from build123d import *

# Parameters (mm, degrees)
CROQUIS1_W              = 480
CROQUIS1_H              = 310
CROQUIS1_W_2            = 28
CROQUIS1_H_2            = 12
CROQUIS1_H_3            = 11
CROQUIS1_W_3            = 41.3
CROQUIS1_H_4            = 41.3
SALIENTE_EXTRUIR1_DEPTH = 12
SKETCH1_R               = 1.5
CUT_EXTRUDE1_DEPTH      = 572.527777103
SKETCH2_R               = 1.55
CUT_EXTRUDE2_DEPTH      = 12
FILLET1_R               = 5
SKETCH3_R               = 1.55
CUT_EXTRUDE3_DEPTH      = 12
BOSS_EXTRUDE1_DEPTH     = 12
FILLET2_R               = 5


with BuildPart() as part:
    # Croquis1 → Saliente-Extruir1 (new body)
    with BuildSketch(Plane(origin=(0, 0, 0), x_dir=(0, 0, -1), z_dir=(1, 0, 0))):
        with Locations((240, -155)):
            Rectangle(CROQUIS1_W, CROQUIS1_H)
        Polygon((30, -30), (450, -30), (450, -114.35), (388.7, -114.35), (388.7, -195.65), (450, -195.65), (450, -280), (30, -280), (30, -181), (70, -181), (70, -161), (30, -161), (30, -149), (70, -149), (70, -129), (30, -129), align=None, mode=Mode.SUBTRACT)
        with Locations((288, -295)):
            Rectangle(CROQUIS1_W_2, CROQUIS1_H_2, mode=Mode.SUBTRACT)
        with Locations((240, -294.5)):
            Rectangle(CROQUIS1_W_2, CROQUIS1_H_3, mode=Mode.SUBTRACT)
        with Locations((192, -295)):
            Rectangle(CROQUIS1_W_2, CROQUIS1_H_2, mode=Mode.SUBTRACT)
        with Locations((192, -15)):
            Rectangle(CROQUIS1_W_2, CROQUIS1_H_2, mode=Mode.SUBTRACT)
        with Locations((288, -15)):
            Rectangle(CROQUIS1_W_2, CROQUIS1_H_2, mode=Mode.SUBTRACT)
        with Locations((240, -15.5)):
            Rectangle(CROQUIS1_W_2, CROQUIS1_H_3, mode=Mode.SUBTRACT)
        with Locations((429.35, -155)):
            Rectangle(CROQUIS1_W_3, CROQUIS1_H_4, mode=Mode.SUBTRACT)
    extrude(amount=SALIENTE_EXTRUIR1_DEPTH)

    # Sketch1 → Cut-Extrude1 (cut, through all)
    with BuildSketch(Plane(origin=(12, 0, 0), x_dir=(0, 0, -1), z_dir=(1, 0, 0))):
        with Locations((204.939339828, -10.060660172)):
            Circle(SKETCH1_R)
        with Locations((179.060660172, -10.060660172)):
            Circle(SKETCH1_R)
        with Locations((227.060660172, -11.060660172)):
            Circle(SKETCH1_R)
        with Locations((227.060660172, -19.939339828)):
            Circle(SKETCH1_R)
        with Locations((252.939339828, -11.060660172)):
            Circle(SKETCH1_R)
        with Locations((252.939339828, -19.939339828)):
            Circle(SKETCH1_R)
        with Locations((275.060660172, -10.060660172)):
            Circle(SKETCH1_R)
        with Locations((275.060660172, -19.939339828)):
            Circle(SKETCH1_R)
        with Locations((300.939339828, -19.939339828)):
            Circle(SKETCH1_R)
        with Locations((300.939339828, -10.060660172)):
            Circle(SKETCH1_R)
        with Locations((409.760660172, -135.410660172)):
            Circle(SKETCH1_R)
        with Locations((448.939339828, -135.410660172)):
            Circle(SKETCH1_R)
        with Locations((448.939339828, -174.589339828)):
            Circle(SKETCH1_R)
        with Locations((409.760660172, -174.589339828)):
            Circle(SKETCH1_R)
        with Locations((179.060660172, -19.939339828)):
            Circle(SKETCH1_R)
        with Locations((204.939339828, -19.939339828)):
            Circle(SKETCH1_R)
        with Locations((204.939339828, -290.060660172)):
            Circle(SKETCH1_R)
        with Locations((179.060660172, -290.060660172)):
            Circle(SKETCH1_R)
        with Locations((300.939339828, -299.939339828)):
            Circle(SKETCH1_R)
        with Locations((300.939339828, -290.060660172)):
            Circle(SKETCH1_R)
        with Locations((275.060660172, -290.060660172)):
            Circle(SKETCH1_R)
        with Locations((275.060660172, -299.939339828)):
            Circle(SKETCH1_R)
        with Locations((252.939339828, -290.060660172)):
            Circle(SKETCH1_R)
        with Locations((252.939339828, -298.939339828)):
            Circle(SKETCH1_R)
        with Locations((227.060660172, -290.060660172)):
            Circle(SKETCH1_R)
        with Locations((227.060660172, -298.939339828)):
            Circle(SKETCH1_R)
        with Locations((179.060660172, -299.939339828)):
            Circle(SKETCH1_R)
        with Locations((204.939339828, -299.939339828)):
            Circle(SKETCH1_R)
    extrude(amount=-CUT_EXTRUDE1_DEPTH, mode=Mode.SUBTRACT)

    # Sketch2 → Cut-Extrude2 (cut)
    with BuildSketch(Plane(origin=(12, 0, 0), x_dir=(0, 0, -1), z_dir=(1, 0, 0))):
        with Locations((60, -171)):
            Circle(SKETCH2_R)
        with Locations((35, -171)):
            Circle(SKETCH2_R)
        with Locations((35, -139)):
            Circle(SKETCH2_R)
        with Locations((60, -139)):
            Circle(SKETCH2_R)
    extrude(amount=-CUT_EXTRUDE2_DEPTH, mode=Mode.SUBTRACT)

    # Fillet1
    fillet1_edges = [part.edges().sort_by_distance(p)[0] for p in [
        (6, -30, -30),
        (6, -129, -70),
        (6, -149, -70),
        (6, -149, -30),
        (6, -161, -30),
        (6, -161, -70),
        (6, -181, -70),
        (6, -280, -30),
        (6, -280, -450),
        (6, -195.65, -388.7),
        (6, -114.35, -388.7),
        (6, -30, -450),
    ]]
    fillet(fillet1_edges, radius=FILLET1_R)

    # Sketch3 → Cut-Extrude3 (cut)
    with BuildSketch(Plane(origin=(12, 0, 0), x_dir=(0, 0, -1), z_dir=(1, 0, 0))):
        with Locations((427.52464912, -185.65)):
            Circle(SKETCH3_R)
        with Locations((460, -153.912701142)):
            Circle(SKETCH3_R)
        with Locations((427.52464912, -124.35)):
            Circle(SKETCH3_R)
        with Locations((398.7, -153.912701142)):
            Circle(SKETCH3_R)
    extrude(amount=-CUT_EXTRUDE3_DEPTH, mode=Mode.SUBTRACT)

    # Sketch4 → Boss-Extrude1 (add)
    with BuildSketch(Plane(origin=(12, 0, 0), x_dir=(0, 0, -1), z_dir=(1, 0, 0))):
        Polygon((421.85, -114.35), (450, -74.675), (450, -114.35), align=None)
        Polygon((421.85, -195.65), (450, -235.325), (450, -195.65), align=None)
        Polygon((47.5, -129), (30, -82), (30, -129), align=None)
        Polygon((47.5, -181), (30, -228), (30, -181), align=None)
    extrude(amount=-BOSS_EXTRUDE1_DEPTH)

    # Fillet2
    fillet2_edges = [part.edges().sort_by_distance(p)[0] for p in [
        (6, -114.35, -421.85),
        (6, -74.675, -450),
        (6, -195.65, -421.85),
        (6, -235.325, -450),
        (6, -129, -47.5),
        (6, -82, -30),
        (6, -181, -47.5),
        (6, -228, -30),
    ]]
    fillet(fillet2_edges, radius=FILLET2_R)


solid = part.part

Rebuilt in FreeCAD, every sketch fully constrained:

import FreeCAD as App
import Part
import Sketcher

V = App.Vector
Q = App.Units.Quantity


def edges_at(feature, points):
    """Names of the edges that pass closest to the given points."""
    edges = feature.Shape.Edges
    near = lambda p: min(range(len(edges)), key=lambda i: edges[i].distToShape(Part.Vertex(*p))[0])
    return sorted({f"Edge{near(p) + 1}" for p in points})

doc = App.newDocument("Part")
body = doc.addObject("PartDesign::Body", "Body")

sketch1 = body.newObject("Sketcher::SketchObject", "Sketch")
sketch1.AttachmentSupport = (doc.getObject("YZ_Plane"), [""])
sketch1.MapMode = "FlatFace"
sketch1.addGeometry(Part.LineSegment(V(0, 0, 0), V(-310, 0, 0)), False)
sketch1.addGeometry(Part.LineSegment(V(-310, 0, 0), V(-310, -480, 0)), False)
sketch1.addGeometry(Part.LineSegment(V(-310, -480, 0), V(0, -480, 0)), False)
sketch1.addGeometry(Part.LineSegment(V(0, -480, 0), V(0, 0, 0)), False)
sketch1.addGeometry(Part.LineSegment(V(-301, -206, 0), V(-301, -178, 0)), False)
sketch1.addGeometry(Part.LineSegment(V(-301, -178, 0), V(-289, -178, 0)), False)
sketch1.addGeometry(Part.LineSegment(V(-289, -178, 0), V(-289, -206, 0)), False)
sketch1.addGeometry(Part.LineSegment(V(-289, -206, 0), V(-301, -206, 0)), False)
sketch1.addGeometry(Part.LineSegment(V(-300, -254, 0), V(-300, -226, 0)), False)
sketch1.addGeometry(Part.LineSegment(V(-300, -226, 0), V(-289, -226, 0)), False)
sketch1.addGeometry(Part.LineSegment(V(-289, -226, 0), V(-289, -254, 0)), False)
sketch1.addGeometry(Part.LineSegment(V(-289, -254, 0), V(-300, -254, 0)), False)
sketch1.addGeometry(Part.LineSegment(V(-301, -302, 0), V(-301, -274, 0)), False)
sketch1.addGeometry(Part.LineSegment(V(-301, -274, 0), V(-289, -274, 0)), False)
sketch1.addGeometry(Part.LineSegment(V(-289, -274, 0), V(-289, -302, 0)), False)
sketch1.addGeometry(Part.LineSegment(V(-289, -302, 0), V(-301, -302, 0)), False)
sketch1.addGeometry(Part.LineSegment(V(-21, -206, 0), V(-21, -178, 0)), False)
sketch1.addGeometry(Part.LineSegment(V(-21, -178, 0), V(-9, -178, 0)), False)
sketch1.addGeometry(Part.LineSegment(V(-9, -178, 0), V(-9, -206, 0)), False)
sketch1.addGeometry(Part.LineSegment(V(-9, -206, 0), V(-21, -206, 0)), False)
sketch1.addGeometry(Part.LineSegment(V(-129, -30, 0), V(-30, -30, 0)), False)
sketch1.addGeometry(Part.LineSegment(V(-30, -30, 0), V(-30, -450, 0)), False)
sketch1.addGeometry(Part.LineSegment(V(-30, -450, 0), V(-114.35, -450, 0)), False)
sketch1.addGeometry(Part.LineSegment(V(-114.35, -450, 0), V(-114.35, -388.7, 0)), False)
sketch1.addGeometry(Part.LineSegment(V(-114.35, -388.7, 0), V(-195.65, -388.7, 0)), False)
sketch1.addGeometry(Part.LineSegment(V(-195.65, -388.7, 0), V(-195.65, -450, 0)), False)
sketch1.addGeometry(Part.LineSegment(V(-195.65, -450, 0), V(-280, -450, 0)), False)
sketch1.addGeometry(Part.LineSegment(V(-280, -450, 0), V(-280, -30, 0)), False)
sketch1.addGeometry(Part.LineSegment(V(-280, -30, 0), V(-181, -30, 0)), False)
sketch1.addGeometry(Part.LineSegment(V(-181, -30, 0), V(-181, -70, 0)), False)
sketch1.addGeometry(Part.LineSegment(V(-181, -70, 0), V(-161, -70, 0)), False)
sketch1.addGeometry(Part.LineSegment(V(-161, -70, 0), V(-161, -30, 0)), False)
sketch1.addGeometry(Part.LineSegment(V(-161, -30, 0), V(-149, -30, 0)), False)
sketch1.addGeometry(Part.LineSegment(V(-149, -30, 0), V(-149, -70, 0)), False)
sketch1.addGeometry(Part.LineSegment(V(-149, -70, 0), V(-129, -70, 0)), False)
sketch1.addGeometry(Part.LineSegment(V(-129, -70, 0), V(-129, -30, 0)), False)
sketch1.addGeometry(Part.LineSegment(V(-175.65, -450, 0), V(-175.65, -408.7, 0)), False)
sketch1.addGeometry(Part.LineSegment(V(-175.65, -408.7, 0), V(-134.35, -408.7, 0)), False)
sketch1.addGeometry(Part.LineSegment(V(-134.35, -408.7, 0), V(-134.35, -450, 0)), False)
sketch1.addGeometry(Part.LineSegment(V(-134.35, -450, 0), V(-175.65, -450, 0)), False)
sketch1.addGeometry(Part.LineSegment(V(-21, -254, 0), V(-21, -226, 0)), False)
sketch1.addGeometry(Part.LineSegment(V(-21, -226, 0), V(-10, -226, 0)), False)
sketch1.addGeometry(Part.LineSegment(V(-10, -226, 0), V(-10, -254, 0)), False)
sketch1.addGeometry(Part.LineSegment(V(-10, -254, 0), V(-21, -254, 0)), False)
sketch1.addGeometry(Part.LineSegment(V(-21, -302, 0), V(-21, -274, 0)), False)
sketch1.addGeometry(Part.LineSegment(V(-21, -274, 0), V(-9, -274, 0)), False)
sketch1.addGeometry(Part.LineSegment(V(-9, -274, 0), V(-9, -302, 0)), False)
sketch1.addGeometry(Part.LineSegment(V(-9, -302, 0), V(-21, -302, 0)), False)
sketch1.addConstraint(Sketcher.Constraint("Coincident", 0, 2, 1, 1))
sketch1.addConstraint(Sketcher.Constraint("Coincident", 1, 2, 2, 1))
sketch1.addConstraint(Sketcher.Constraint("Coincident", 2, 2, 3, 1))
sketch1.addConstraint(Sketcher.Constraint("Coincident", 3, 2, 0, 1))
sketch1.addConstraint(Sketcher.Constraint("Coincident", 4, 2, 5, 1))
sketch1.addConstraint(Sketcher.Constraint("Coincident", 5, 2, 6, 1))
sketch1.addConstraint(Sketcher.Constraint("Coincident", 6, 2, 7, 1))
sketch1.addConstraint(Sketcher.Constraint("Coincident", 7, 2, 4, 1))
sketch1.addConstraint(Sketcher.Constraint("Coincident", 8, 2, 9, 1))
sketch1.addConstraint(Sketcher.Constraint("Coincident", 9, 2, 10, 1))
sketch1.addConstraint(Sketcher.Constraint("Coincident", 10, 2, 11, 1))
sketch1.addConstraint(Sketcher.Constraint("Coincident", 11, 2, 8, 1))
sketch1.addConstraint(Sketcher.Constraint("Coincident", 12, 2, 13, 1))
sketch1.addConstraint(Sketcher.Constraint("Coincident", 13, 2, 14, 1))
sketch1.addConstraint(Sketcher.Constraint("Coincident", 14, 2, 15, 1))
sketch1.addConstraint(Sketcher.Constraint("Coincident", 15, 2, 12, 1))
sketch1.addConstraint(Sketcher.Constraint("Coincident", 16, 2, 17, 1))
sketch1.addConstraint(Sketcher.Constraint("Coincident", 17, 2, 18, 1))
sketch1.addConstraint(Sketcher.Constraint("Coincident", 18, 2, 19, 1))
sketch1.addConstraint(Sketcher.Constraint("Coincident", 19, 2, 16, 1))
sketch1.addConstraint(Sketcher.Constraint("Coincident", 20, 2, 21, 1))
sketch1.addConstraint(Sketcher.Constraint("Coincident", 21, 2, 22, 1))
sketch1.addConstraint(Sketcher.Constraint("Coincident", 22, 2, 23, 1))
sketch1.addConstraint(Sketcher.Constraint("Coincident", 23, 2, 24, 1))
sketch1.addConstraint(Sketcher.Constraint("Coincident", 24, 2, 25, 1))
sketch1.addConstraint(Sketcher.Constraint("Coincident", 25, 2, 26, 1))
sketch1.addConstraint(Sketcher.Constraint("Coincident", 26, 2, 27, 1))
sketch1.addConstraint(Sketcher.Constraint("Coincident", 27, 2, 28, 1))
sketch1.addConstraint(Sketcher.Constraint("Coincident", 28, 2, 29, 1))
sketch1.addConstraint(Sketcher.Constraint("Coincident", 29, 2, 30, 1))
sketch1.addConstraint(Sketcher.Constraint("Coincident", 30, 2, 31, 1))
sketch1.addConstraint(Sketcher.Constraint("Coincident", 31, 2, 32, 1))
sketch1.addConstraint(Sketcher.Constraint("Coincident", 32, 2, 33, 1))
sketch1.addConstraint(Sketcher.Constraint("Coincident", 33, 2, 34, 1))
sketch1.addConstraint(Sketcher.Constraint("Coincident", 34, 2, 35, 1))
sketch1.addConstraint(Sketcher.Constraint("Coincident", 35, 2, 20, 1))
sketch1.addConstraint(Sketcher.Constraint("Coincident", 36, 2, 37, 1))
sketch1.addConstraint(Sketcher.Constraint("Coincident", 37, 2, 38, 1))
sketch1.addConstraint(Sketcher.Constraint("Coincident", 38, 2, 39, 1))
sketch1.addConstraint(Sketcher.Constraint("Coincident", 39, 2, 36, 1))
sketch1.addConstraint(Sketcher.Constraint("Coincident", 40, 2, 41, 1))
sketch1.addConstraint(Sketcher.Constraint("Coincident", 41, 2, 42, 1))
sketch1.addConstraint(Sketcher.Constraint("Coincident", 42, 2, 43, 1))
sketch1.addConstraint(Sketcher.Constraint("Coincident", 43, 2, 40, 1))
sketch1.addConstraint(Sketcher.Constraint("Coincident", 44, 2, 45, 1))
sketch1.addConstraint(Sketcher.Constraint("Coincident", 45, 2, 46, 1))
sketch1.addConstraint(Sketcher.Constraint("Coincident", 46, 2, 47, 1))
sketch1.addConstraint(Sketcher.Constraint("Coincident", 47, 2, 44, 1))
sketch1.addConstraint(Sketcher.Constraint("Horizontal", 0))
sketch1.addConstraint(Sketcher.Constraint("Vertical", 1))
sketch1.addConstraint(Sketcher.Constraint("Horizontal", 2))
sketch1.addConstraint(Sketcher.Constraint("Vertical", 3))
sketch1.addConstraint(Sketcher.Constraint("Vertical", 4))
sketch1.addConstraint(Sketcher.Constraint("Horizontal", 5))
sketch1.addConstraint(Sketcher.Constraint("Vertical", 6))
sketch1.addConstraint(Sketcher.Constraint("Horizontal", 7))
sketch1.addConstraint(Sketcher.Constraint("Vertical", 8))
sketch1.addConstraint(Sketcher.Constraint("Horizontal", 9))
sketch1.addConstraint(Sketcher.Constraint("Vertical", 10))
sketch1.addConstraint(Sketcher.Constraint("Horizontal", 11))
sketch1.addConstraint(Sketcher.Constraint("Vertical", 12))
sketch1.addConstraint(Sketcher.Constraint("Horizontal", 13))
sketch1.addConstraint(Sketcher.Constraint("Vertical", 14))
sketch1.addConstraint(Sketcher.Constraint("Horizontal", 15))
sketch1.addConstraint(Sketcher.Constraint("Vertical", 16))
sketch1.addConstraint(Sketcher.Constraint("Horizontal", 17))
sketch1.addConstraint(Sketcher.Constraint("Vertical", 18))
sketch1.addConstraint(Sketcher.Constraint("Horizontal", 19))
sketch1.addConstraint(Sketcher.Constraint("Horizontal", 20))
sketch1.addConstraint(Sketcher.Constraint("Vertical", 21))
sketch1.addConstraint(Sketcher.Constraint("Horizontal", 22))
sketch1.addConstraint(Sketcher.Constraint("Vertical", 23))
sketch1.addConstraint(Sketcher.Constraint("Horizontal", 24))
sketch1.addConstraint(Sketcher.Constraint("Vertical", 25))
sketch1.addConstraint(Sketcher.Constraint("Horizontal", 26))
sketch1.addConstraint(Sketcher.Constraint("Vertical", 27))
sketch1.addConstraint(Sketcher.Constraint("Horizontal", 28))
sketch1.addConstraint(Sketcher.Constraint("Vertical", 29))
sketch1.addConstraint(Sketcher.Constraint("Horizontal", 30))
sketch1.addConstraint(Sketcher.Constraint("Vertical", 31))
sketch1.addConstraint(Sketcher.Constraint("Horizontal", 32))
sketch1.addConstraint(Sketcher.Constraint("Vertical", 33))
sketch1.addConstraint(Sketcher.Constraint("Horizontal", 34))
sketch1.addConstraint(Sketcher.Constraint("Vertical", 35))
sketch1.addConstraint(Sketcher.Constraint("Vertical", 36))
sketch1.addConstraint(Sketcher.Constraint("Horizontal", 37))
sketch1.addConstraint(Sketcher.Constraint("Vertical", 38))
sketch1.addConstraint(Sketcher.Constraint("Horizontal", 39))
sketch1.addConstraint(Sketcher.Constraint("Vertical", 40))
sketch1.addConstraint(Sketcher.Constraint("Horizontal", 41))
sketch1.addConstraint(Sketcher.Constraint("Vertical", 42))
sketch1.addConstraint(Sketcher.Constraint("Horizontal", 43))
sketch1.addConstraint(Sketcher.Constraint("Vertical", 44))
sketch1.addConstraint(Sketcher.Constraint("Horizontal", 45))
sketch1.addConstraint(Sketcher.Constraint("Vertical", 46))
sketch1.addConstraint(Sketcher.Constraint("Horizontal", 47))
sketch1.addConstraint(Sketcher.Constraint("Coincident", 3, 2, -1, 1))
sketch1.addConstraint(Sketcher.Constraint("Horizontal", 5, 2, 16, 2))
sketch1.addConstraint(Sketcher.Constraint("Horizontal", 7, 2, 18, 2))
sketch1.addConstraint(Sketcher.Constraint("Horizontal", 22, 2, 25, 2))
sketch1.addConstraint(Sketcher.Constraint("Horizontal", 20, 2, 27, 2))
sketch1.addConstraint(Sketcher.Constraint("Horizontal", 28, 2, 31, 2))
sketch1.addConstraint(Sketcher.Constraint("Horizontal", 30, 2, 33, 2))
sketch1.addConstraint(Sketcher.Constraint("Horizontal", 26, 2, 38, 2))
sketch1.addConstraint(Sketcher.Constraint("Horizontal", 9, 2, 40, 2))
sketch1.addConstraint(Sketcher.Constraint("Horizontal", 11, 2, 42, 2))
sketch1.addConstraint(Sketcher.Constraint("Horizontal", 13, 2, 44, 2))
sketch1.addConstraint(Sketcher.Constraint("Horizontal", 15, 2, 46, 2))
sketch1.addConstraint(Sketcher.Constraint("Vertical", 6, 2, 9, 2))
sketch1.addConstraint(Sketcher.Constraint("Vertical", 7, 2, 12, 2))
sketch1.addConstraint(Sketcher.Constraint("Vertical", 10, 2, 13, 2))
sketch1.addConstraint(Sketcher.Constraint("Vertical", 19, 2, 40, 2))
sketch1.addConstraint(Sketcher.Constraint("Vertical", 43, 2, 44, 2))
sketch1.addConstraint(Sketcher.Constraint("Vertical", 18, 2, 45, 2))
sketch1.addConstraint(Sketcher.Constraint("Equal", 15, 17))
sketch1.addConstraint(Sketcher.Constraint("Equal", 22, 26))
sketch1.addConstraint(Sketcher.Constraint("Equal", 20, 28))
sketch1.addConstraint(Sketcher.Constraint("Equal", 19, 32))
sketch1.addConstraint(Sketcher.Constraint("Equal", 30, 34))
sketch1.addConstraint(Sketcher.Constraint("Equal", 11, 41))
sketch1.addConstraint(Sketcher.Constraint("Equal", 6, 8))
sketch1.addConstraint(Sketcher.Constraint("Equal", 10, 12))
sketch1.addConstraint(Sketcher.Constraint("Equal", 39, 36))
sketch1.addConstraint(Sketcher.Constraint("DistanceX", 0, 2, 0, 1, Q("310 mm")))
sketch1.addConstraint(Sketcher.Constraint("DistanceX", 5, 1, 5, 2, Q("12 mm")))
sketch1.addConstraint(Sketcher.Constraint("DistanceX", 9, 1, 9, 2, Q("11 mm")))
sketch1.addConstraint(Sketcher.Constraint("DistanceX", 20, 1, 20, 2, Q("99 mm")))
sketch1.addConstraint(Sketcher.Constraint("DistanceX", 30, 1, 30, 2, Q("20 mm")))
sketch1.addConstraint(Sketcher.Constraint("DistanceY", 1, 2, 1, 1, Q("480 mm")))
sketch1.addConstraint(Sketcher.Constraint("DistanceY", 4, 1, 4, 2, Q("28 mm")))
sketch1.addConstraint(Sketcher.Constraint("DistanceY", 21, 2, 21, 1, Q("420 mm")))
sketch1.addConstraint(Sketcher.Constraint("DistanceY", 29, 2, 29, 1, Q("40 mm")))
sketch1.addConstraint(Sketcher.Constraint("DistanceX", 24, 2, 24, 1, Q("81.3 mm")))
sketch1.addConstraint(Sketcher.Constraint("DistanceX", 37, 1, 37, 2, Q("41.3 mm")))
sketch1.addConstraint(Sketcher.Constraint("DistanceY", 23, 1, 23, 2, Q("61.3 mm")))
sketch1.addConstraint(Sketcher.Constraint("DistanceX", 4, 2, -1, 1, Q("301 mm")))
sketch1.addConstraint(Sketcher.Constraint("DistanceY", 4, 2, -1, 1, Q("178 mm")))
sketch1.addConstraint(Sketcher.Constraint("DistanceY", 8, 2, -1, 1, Q("226 mm")))
sketch1.addConstraint(Sketcher.Constraint("DistanceY", 12, 2, -1, 1, Q("274 mm")))
sketch1.addConstraint(Sketcher.Constraint("DistanceX", 16, 2, -1, 1, Q("21 mm")))
sketch1.addConstraint(Sketcher.Constraint("DistanceX", 20, 2, -1, 1, Q("30 mm")))
sketch1.addConstraint(Sketcher.Constraint("DistanceY", 20, 2, -1, 1, Q("30 mm")))
sketch1.addConstraint(Sketcher.Constraint("DistanceX", 24, 2, 36, 2, Q("20 mm")))
pad1 = body.newObject("PartDesign::Pad", "Pad")
pad1.Profile = sketch1
pad1.Length = 12

sketch2 = body.newObject("Sketcher::SketchObject", "Sketch001")
sketch2.AttachmentSupport = (doc.getObject("YZ_Plane"), [""])
sketch2.MapMode = "FlatFace"
sketch2.AttachmentOffset = App.Placement(V(0, 0, 12), App.Rotation())
sketch2.addGeometry(Part.Circle(V(-10.06066, -204.93934, 0), V(0, 0, 1), 1.5), False)
sketch2.addGeometry(Part.Circle(V(-10.06066, -179.06066, 0), V(0, 0, 1), 1.5), False)
sketch2.addGeometry(Part.Circle(V(-11.06066, -227.06066, 0), V(0, 0, 1), 1.5), False)
sketch2.addGeometry(Part.Circle(V(-19.93934, -227.06066, 0), V(0, 0, 1), 1.5), False)
sketch2.addGeometry(Part.Circle(V(-11.06066, -252.93934, 0), V(0, 0, 1), 1.5), False)
sketch2.addGeometry(Part.Circle(V(-19.93934, -252.93934, 0), V(0, 0, 1), 1.5), False)
sketch2.addGeometry(Part.Circle(V(-10.06066, -275.06066, 0), V(0, 0, 1), 1.5), False)
sketch2.addGeometry(Part.Circle(V(-19.93934, -275.06066, 0), V(0, 0, 1), 1.5), False)
sketch2.addGeometry(Part.Circle(V(-19.93934, -300.93934, 0), V(0, 0, 1), 1.5), False)
sketch2.addGeometry(Part.Circle(V(-10.06066, -300.93934, 0), V(0, 0, 1), 1.5), False)
sketch2.addGeometry(Part.Circle(V(-135.41066, -409.76066, 0), V(0, 0, 1), 1.5), False)
sketch2.addGeometry(Part.Circle(V(-135.41066, -448.93934, 0), V(0, 0, 1), 1.5), False)
sketch2.addGeometry(Part.Circle(V(-174.58934, -448.93934, 0), V(0, 0, 1), 1.5), False)
sketch2.addGeometry(Part.Circle(V(-174.58934, -409.76066, 0), V(0, 0, 1), 1.5), False)
sketch2.addGeometry(Part.Circle(V(-19.93934, -179.06066, 0), V(0, 0, 1), 1.5), False)
sketch2.addGeometry(Part.Circle(V(-19.93934, -204.93934, 0), V(0, 0, 1), 1.5), False)
sketch2.addGeometry(Part.Circle(V(-290.06066, -204.93934, 0), V(0, 0, 1), 1.5), False)
sketch2.addGeometry(Part.Circle(V(-290.06066, -179.06066, 0), V(0, 0, 1), 1.5), False)
sketch2.addGeometry(Part.Circle(V(-299.93934, -300.93934, 0), V(0, 0, 1), 1.5), False)
sketch2.addGeometry(Part.Circle(V(-290.06066, -300.93934, 0), V(0, 0, 1), 1.5), False)
sketch2.addGeometry(Part.Circle(V(-290.06066, -275.06066, 0), V(0, 0, 1), 1.5), False)
sketch2.addGeometry(Part.Circle(V(-299.93934, -275.06066, 0), V(0, 0, 1), 1.5), False)
sketch2.addGeometry(Part.Circle(V(-290.06066, -252.93934, 0), V(0, 0, 1), 1.5), False)
sketch2.addGeometry(Part.Circle(V(-298.93934, -252.93934, 0), V(0, 0, 1), 1.5), False)
sketch2.addGeometry(Part.Circle(V(-290.06066, -227.06066, 0), V(0, 0, 1), 1.5), False)
sketch2.addGeometry(Part.Circle(V(-298.93934, -227.06066, 0), V(0, 0, 1), 1.5), False)
sketch2.addGeometry(Part.Circle(V(-299.93934, -179.06066, 0), V(0, 0, 1), 1.5), False)
sketch2.addGeometry(Part.Circle(V(-299.93934, -204.93934, 0), V(0, 0, 1), 1.5), False)
sketch2.addConstraint(Sketcher.Constraint("Equal", 0, 1))
sketch2.addConstraint(Sketcher.Constraint("Equal", 1, 2))
sketch2.addConstraint(Sketcher.Constraint("Equal", 2, 3))
sketch2.addConstraint(Sketcher.Constraint("Equal", 3, 4))
sketch2.addConstraint(Sketcher.Constraint("Equal", 4, 5))
sketch2.addConstraint(Sketcher.Constraint("Equal", 5, 6))
sketch2.addConstraint(Sketcher.Constraint("Equal", 6, 7))
sketch2.addConstraint(Sketcher.Constraint("Equal", 7, 8))
sketch2.addConstraint(Sketcher.Constraint("Equal", 8, 9))
sketch2.addConstraint(Sketcher.Constraint("Equal", 9, 10))
sketch2.addConstraint(Sketcher.Constraint("Equal", 10, 11))
sketch2.addConstraint(Sketcher.Constraint("Equal", 11, 12))
sketch2.addConstraint(Sketcher.Constraint("Equal", 12, 13))
sketch2.addConstraint(Sketcher.Constraint("Equal", 13, 14))
sketch2.addConstraint(Sketcher.Constraint("Equal", 14, 15))
sketch2.addConstraint(Sketcher.Constraint("Equal", 15, 16))
sketch2.addConstraint(Sketcher.Constraint("Equal", 16, 17))
sketch2.addConstraint(Sketcher.Constraint("Equal", 17, 18))
sketch2.addConstraint(Sketcher.Constraint("Equal", 18, 19))
sketch2.addConstraint(Sketcher.Constraint("Equal", 19, 20))
sketch2.addConstraint(Sketcher.Constraint("Equal", 20, 21))
sketch2.addConstraint(Sketcher.Constraint("Equal", 21, 22))
sketch2.addConstraint(Sketcher.Constraint("Equal", 22, 23))
sketch2.addConstraint(Sketcher.Constraint("Equal", 23, 24))
sketch2.addConstraint(Sketcher.Constraint("Equal", 24, 25))
sketch2.addConstraint(Sketcher.Constraint("Equal", 25, 26))
sketch2.addConstraint(Sketcher.Constraint("Equal", 26, 27))
sketch2.addConstraint(Sketcher.Constraint("Horizontal", 2, 3, 3, 3))
sketch2.addConstraint(Sketcher.Constraint("Horizontal", 4, 3, 5, 3))
sketch2.addConstraint(Sketcher.Constraint("Horizontal", 6, 3, 7, 3))
sketch2.addConstraint(Sketcher.Constraint("Horizontal", 8, 3, 9, 3))
sketch2.addConstraint(Sketcher.Constraint("Horizontal", 11, 3, 12, 3))
sketch2.addConstraint(Sketcher.Constraint("Horizontal", 10, 3, 13, 3))
sketch2.addConstraint(Sketcher.Constraint("Horizontal", 1, 3, 14, 3))
sketch2.addConstraint(Sketcher.Constraint("Horizontal", 0, 3, 15, 3))
sketch2.addConstraint(Sketcher.Constraint("Horizontal", 15, 3, 16, 3))
sketch2.addConstraint(Sketcher.Constraint("Horizontal", 14, 3, 17, 3))
sketch2.addConstraint(Sketcher.Constraint("Horizontal", 9, 3, 18, 3))
sketch2.addConstraint(Sketcher.Constraint("Horizontal", 18, 3, 19, 3))
sketch2.addConstraint(Sketcher.Constraint("Horizontal", 7, 3, 20, 3))
sketch2.addConstraint(Sketcher.Constraint("Horizontal", 20, 3, 21, 3))
sketch2.addConstraint(Sketcher.Constraint("Horizontal", 5, 3, 22, 3))
sketch2.addConstraint(Sketcher.Constraint("Horizontal", 22, 3, 23, 3))
sketch2.addConstraint(Sketcher.Constraint("Horizontal", 3, 3, 24, 3))
sketch2.addConstraint(Sketcher.Constraint("Horizontal", 24, 3, 25, 3))
sketch2.addConstraint(Sketcher.Constraint("Horizontal", 17, 3, 26, 3))
sketch2.addConstraint(Sketcher.Constraint("Horizontal", 16, 3, 27, 3))
sketch2.addConstraint(Sketcher.Constraint("Vertical", 0, 3, 1, 3))
sketch2.addConstraint(Sketcher.Constraint("Vertical", 2, 3, 4, 3))
sketch2.addConstraint(Sketcher.Constraint("Vertical", 3, 3, 5, 3))
sketch2.addConstraint(Sketcher.Constraint("Vertical", 1, 3, 6, 3))
sketch2.addConstraint(Sketcher.Constraint("Vertical", 5, 3, 7, 3))
sketch2.addConstraint(Sketcher.Constraint("Vertical", 7, 3, 8, 3))
sketch2.addConstraint(Sketcher.Constraint("Vertical", 6, 3, 9, 3))
sketch2.addConstraint(Sketcher.Constraint("Vertical", 10, 3, 11, 3))
sketch2.addConstraint(Sketcher.Constraint("Vertical", 12, 3, 13, 3))
sketch2.addConstraint(Sketcher.Constraint("Vertical", 8, 3, 14, 3))
sketch2.addConstraint(Sketcher.Constraint("Vertical", 14, 3, 15, 3))
sketch2.addConstraint(Sketcher.Constraint("Vertical", 16, 3, 17, 3))
sketch2.addConstraint(Sketcher.Constraint("Vertical", 17, 3, 19, 3))
sketch2.addConstraint(Sketcher.Constraint("Vertical", 19, 3, 20, 3))
sketch2.addConstraint(Sketcher.Constraint("Vertical", 18, 3, 21, 3))
sketch2.addConstraint(Sketcher.Constraint("Vertical", 20, 3, 22, 3))
sketch2.addConstraint(Sketcher.Constraint("Vertical", 22, 3, 24, 3))
sketch2.addConstraint(Sketcher.Constraint("Vertical", 23, 3, 25, 3))
sketch2.addConstraint(Sketcher.Constraint("Vertical", 21, 3, 26, 3))
sketch2.addConstraint(Sketcher.Constraint("Vertical", 26, 3, 27, 3))
sketch2.addConstraint(Sketcher.Constraint("Diameter", 0, Q("3 mm")))
sketch2.addConstraint(Sketcher.Constraint("DistanceX", 2, 3, 0, 3, Q("1 mm")))
sketch2.addConstraint(Sketcher.Constraint("DistanceY", 2, 3, 1, 3, Q("48 mm")))
sketch2.addConstraint(Sketcher.Constraint("DistanceY", 4, 3, 0, 3, Q("48 mm")))
sketch2.addConstraint(Sketcher.Constraint("DistanceY", 6, 3, 2, 3, Q("48 mm")))
sketch2.addConstraint(Sketcher.Constraint("DistanceY", 8, 3, 5, 3, Q("48 mm")))
sketch2.addConstraint(Sketcher.Constraint("DistanceY", 11, 3, 8, 3, Q("148 mm")))
sketch2.addConstraint(Sketcher.Constraint("DistanceX", 21, 3, 23, 3, Q("1 mm")))
sketch2.addConstraint(Sketcher.Constraint("DistanceY", 10, 3, 7, 3, Q("134.7 mm")))
sketch2.addConstraint(Sketcher.Constraint("DistanceX", 10, 3, 9, 3, Q("125.35 mm")))
sketch2.addConstraint(Sketcher.Constraint("DistanceX", 12, 3, 8, 3, Q("154.65 mm")))
sketch2.addConstraint(Sketcher.Constraint("DistanceX", 16, 3, 10, 3, Q("154.65 mm")))
sketch2.addConstraint(Sketcher.Constraint("DistanceX", 18, 3, 13, 3, Q("125.35 mm")))
sketch2.addConstraint(Sketcher.Constraint("DistanceX", 0, 3, -1, 1, Q("10.06066 mm")))
sketch2.addConstraint(Sketcher.Constraint("DistanceY", 0, 3, -1, 1, Q("204.93934 mm")))
sketch2.addConstraint(Sketcher.Constraint("DistanceY", 1, 3, -1, 1, Q("179.06066 mm")))
sketch2.addConstraint(Sketcher.Constraint("DistanceX", 3, 3, -1, 1, Q("19.93934 mm")))
pocket1 = body.newObject("PartDesign::Pocket", "Pocket")
pocket1.Profile = sketch2
pocket1.Type = "ThroughAll"

sketch3 = body.newObject("Sketcher::SketchObject", "Sketch002")
sketch3.AttachmentSupport = (doc.getObject("YZ_Plane"), [""])
sketch3.MapMode = "FlatFace"
sketch3.AttachmentOffset = App.Placement(V(0, 0, 12), App.Rotation())
sketch3.addGeometry(Part.Circle(V(-171, -60, 0), V(0, 0, 1), 1.55), False)
sketch3.addGeometry(Part.Circle(V(-171, -35, 0), V(0, 0, 1), 1.55), False)
sketch3.addGeometry(Part.Circle(V(-139, -35, 0), V(0, 0, 1), 1.55), False)
sketch3.addGeometry(Part.Circle(V(-139, -60, 0), V(0, 0, 1), 1.55), False)
sketch3.addConstraint(Sketcher.Constraint("Equal", 0, 1))
sketch3.addConstraint(Sketcher.Constraint("Equal", 1, 2))
sketch3.addConstraint(Sketcher.Constraint("Equal", 2, 3))
sketch3.addConstraint(Sketcher.Constraint("Horizontal", 1, 3, 2, 3))
sketch3.addConstraint(Sketcher.Constraint("Horizontal", 0, 3, 3, 3))
sketch3.addConstraint(Sketcher.Constraint("Vertical", 0, 3, 1, 3))
sketch3.addConstraint(Sketcher.Constraint("Vertical", 2, 3, 3, 3))
sketch3.addConstraint(Sketcher.Constraint("Diameter", 0, Q("3.1 mm")))
sketch3.addConstraint(Sketcher.Constraint("DistanceX", 0, 3, -1, 1, Q("171 mm")))
sketch3.addConstraint(Sketcher.Constraint("DistanceY", 0, 3, -1, 1, Q("60 mm")))
sketch3.addConstraint(Sketcher.Constraint("DistanceY", 1, 3, -1, 1, Q("35 mm")))
sketch3.addConstraint(Sketcher.Constraint("DistanceX", 2, 3, -1, 1, Q("139 mm")))
pocket2 = body.newObject("PartDesign::Pocket", "Pocket001")
pocket2.Profile = sketch3
pocket2.Length = 12
doc.recompute()

fillet = body.newObject("PartDesign::Fillet", "Fillet")
fillet.Base = (pocket2, edges_at(pocket2, [
    (6, -30, -30),
    (6, -129, -70),
    (6, -149, -70),
    (6, -149, -30),
    (6, -161, -30),
    (6, -161, -70),
    (6, -181, -70),
    (6, -280, -30),
    (6, -280, -450),
    (6, -195.65, -388.7),
    (6, -114.35, -388.7),
    (6, -30, -450),
]))
fillet.Radius = 5

sketch4 = body.newObject("Sketcher::SketchObject", "Sketch003")
sketch4.AttachmentSupport = (doc.getObject("YZ_Plane"), [""])
sketch4.MapMode = "FlatFace"
sketch4.AttachmentOffset = App.Placement(V(0, 0, 12), App.Rotation())
sketch4.addGeometry(Part.Circle(V(-185.65, -427.524649, 0), V(0, 0, 1), 1.55), False)
sketch4.addGeometry(Part.Circle(V(-153.912701, -460, 0), V(0, 0, 1), 1.55), False)
sketch4.addGeometry(Part.Circle(V(-124.35, -427.524649, 0), V(0, 0, 1), 1.55), False)
sketch4.addGeometry(Part.Circle(V(-153.912701, -398.7, 0), V(0, 0, 1), 1.55), False)
sketch4.addConstraint(Sketcher.Constraint("Equal", 0, 1))
sketch4.addConstraint(Sketcher.Constraint("Equal", 1, 2))
sketch4.addConstraint(Sketcher.Constraint("Equal", 2, 3))
sketch4.addConstraint(Sketcher.Constraint("Horizontal", 0, 3, 2, 3))
sketch4.addConstraint(Sketcher.Constraint("Vertical", 1, 3, 3, 3))
sketch4.addConstraint(Sketcher.Constraint("Diameter", 0, Q("3.1 mm")))
sketch4.addConstraint(Sketcher.Constraint("DistanceY", 1, 3, -1, 1, Q("460 mm")))
sketch4.addConstraint(Sketcher.Constraint("DistanceY", 3, 3, -1, 1, Q("398.7 mm")))
sketch4.addConstraint(Sketcher.Constraint("DistanceX", 0, 3, 2, 3, Q("61.3 mm")))
sketch4.addConstraint(Sketcher.Constraint("DistanceX", 0, 3, -1, 1, Q("185.65 mm")))
sketch4.addConstraint(Sketcher.Constraint("DistanceX", 1, 3, -1, 1, Q("153.912701 mm")))
sketch4.addConstraint(Sketcher.Constraint("DistanceY", 0, 3, -1, 1, Q("427.524649 mm")))
pocket3 = body.newObject("PartDesign::Pocket", "Pocket002")
pocket3.Profile = sketch4
pocket3.Length = 12

sketch5 = body.newObject("Sketcher::SketchObject", "Sketch004")
sketch5.AttachmentSupport = (doc.getObject("YZ_Plane"), [""])
sketch5.MapMode = "FlatFace"
sketch5.AttachmentOffset = App.Placement(V(0, 0, 12), App.Rotation())
sketch5.addGeometry(Part.LineSegment(V(-74.675, -450, 0), V(-114.35, -421.85, 0)), False)
sketch5.addGeometry(Part.LineSegment(V(-114.35, -421.85, 0), V(-114.35, -450, 0)), False)
sketch5.addGeometry(Part.LineSegment(V(-114.35, -450, 0), V(-74.675, -450, 0)), False)
sketch5.addGeometry(Part.LineSegment(V(-195.65, -421.85, 0), V(-235.325, -450, 0)), False)
sketch5.addGeometry(Part.LineSegment(V(-235.325, -450, 0), V(-195.65, -450, 0)), False)
sketch5.addGeometry(Part.LineSegment(V(-195.65, -450, 0), V(-195.65, -421.85, 0)), False)
sketch5.addGeometry(Part.LineSegment(V(-129, -47.5, 0), V(-82, -30, 0)), False)
sketch5.addGeometry(Part.LineSegment(V(-82, -30, 0), V(-129, -30, 0)), False)
sketch5.addGeometry(Part.LineSegment(V(-129, -30, 0), V(-129, -47.5, 0)), False)
sketch5.addGeometry(Part.LineSegment(V(-228, -30, 0), V(-181, -47.5, 0)), False)
sketch5.addGeometry(Part.LineSegment(V(-181, -47.5, 0), V(-181, -30, 0)), False)
sketch5.addGeometry(Part.LineSegment(V(-181, -30, 0), V(-228, -30, 0)), False)
sketch5.addConstraint(Sketcher.Constraint("Coincident", 0, 2, 1, 1))
sketch5.addConstraint(Sketcher.Constraint("Coincident", 1, 2, 2, 1))
sketch5.addConstraint(Sketcher.Constraint("Coincident", 2, 2, 0, 1))
sketch5.addConstraint(Sketcher.Constraint("Coincident", 3, 2, 4, 1))
sketch5.addConstraint(Sketcher.Constraint("Coincident", 4, 2, 5, 1))
sketch5.addConstraint(Sketcher.Constraint("Coincident", 5, 2, 3, 1))
sketch5.addConstraint(Sketcher.Constraint("Coincident", 6, 2, 7, 1))
sketch5.addConstraint(Sketcher.Constraint("Coincident", 7, 2, 8, 1))
sketch5.addConstraint(Sketcher.Constraint("Coincident", 8, 2, 6, 1))
sketch5.addConstraint(Sketcher.Constraint("Coincident", 9, 2, 10, 1))
sketch5.addConstraint(Sketcher.Constraint("Coincident", 10, 2, 11, 1))
sketch5.addConstraint(Sketcher.Constraint("Coincident", 11, 2, 9, 1))
sketch5.addConstraint(Sketcher.Constraint("Vertical", 1))
sketch5.addConstraint(Sketcher.Constraint("Horizontal", 2))
sketch5.addConstraint(Sketcher.Constraint("Horizontal", 4))
sketch5.addConstraint(Sketcher.Constraint("Vertical", 5))
sketch5.addConstraint(Sketcher.Constraint("Horizontal", 7))
sketch5.addConstraint(Sketcher.Constraint("Vertical", 8))
sketch5.addConstraint(Sketcher.Constraint("Vertical", 10))
sketch5.addConstraint(Sketcher.Constraint("Horizontal", 11))
sketch5.addConstraint(Sketcher.Constraint("Horizontal", 2, 2, 3, 2))
sketch5.addConstraint(Sketcher.Constraint("Horizontal", 0, 2, 5, 2))
sketch5.addConstraint(Sketcher.Constraint("Horizontal", 8, 2, 9, 2))
sketch5.addConstraint(Sketcher.Constraint("Horizontal", 7, 2, 10, 2))
sketch5.addConstraint(Sketcher.Constraint("Equal", 2, 4))
sketch5.addConstraint(Sketcher.Constraint("Equal", 7, 11))
sketch5.addConstraint(Sketcher.Constraint("DistanceX", 7, 2, 7, 1, Q("47 mm")))
sketch5.addConstraint(Sketcher.Constraint("DistanceY", 8, 2, 8, 1, Q("17.5 mm")))
sketch5.addConstraint(Sketcher.Constraint("DistanceY", 1, 2, -1, 1, Q("450 mm")))
sketch5.addConstraint(Sketcher.Constraint("DistanceX", 6, 2, -1, 1, Q("82 mm")))
sketch5.addConstraint(Sketcher.Constraint("DistanceY", 6, 2, -1, 1, Q("30 mm")))
sketch5.addConstraint(Sketcher.Constraint("DistanceX", 9, 2, -1, 1, Q("181 mm")))
sketch5.addConstraint(Sketcher.Constraint("DistanceY", 1, 2, 1, 1, Q("28.15 mm")))
sketch5.addConstraint(Sketcher.Constraint("DistanceX", 4, 2, 1, 2, Q("81.3 mm")))
sketch5.addConstraint(Sketcher.Constraint("DistanceX", 2, 1, 2, 2, Q("39.675 mm")))
sketch5.addConstraint(Sketcher.Constraint("DistanceX", 0, 2, -1, 1, Q("114.35 mm")))
pad2 = body.newObject("PartDesign::Pad", "Pad001")
pad2.Profile = sketch5
pad2.Length = 12
pad2.Reversed = True
doc.recompute()

fillet2 = body.newObject("PartDesign::Fillet", "Fillet001")
fillet2.Base = (pad2, edges_at(pad2, [
    (6, -114.35, -421.85),
    (6, -74.675, -450),
    (6, -195.65, -421.85),
    (6, -235.325, -450),
    (6, -129, -47.5),
    (6, -82, -30),
    (6, -181, -47.5),
    (6, -228, -30),
]))
fillet2.Radius = 5

doc.recompute()
